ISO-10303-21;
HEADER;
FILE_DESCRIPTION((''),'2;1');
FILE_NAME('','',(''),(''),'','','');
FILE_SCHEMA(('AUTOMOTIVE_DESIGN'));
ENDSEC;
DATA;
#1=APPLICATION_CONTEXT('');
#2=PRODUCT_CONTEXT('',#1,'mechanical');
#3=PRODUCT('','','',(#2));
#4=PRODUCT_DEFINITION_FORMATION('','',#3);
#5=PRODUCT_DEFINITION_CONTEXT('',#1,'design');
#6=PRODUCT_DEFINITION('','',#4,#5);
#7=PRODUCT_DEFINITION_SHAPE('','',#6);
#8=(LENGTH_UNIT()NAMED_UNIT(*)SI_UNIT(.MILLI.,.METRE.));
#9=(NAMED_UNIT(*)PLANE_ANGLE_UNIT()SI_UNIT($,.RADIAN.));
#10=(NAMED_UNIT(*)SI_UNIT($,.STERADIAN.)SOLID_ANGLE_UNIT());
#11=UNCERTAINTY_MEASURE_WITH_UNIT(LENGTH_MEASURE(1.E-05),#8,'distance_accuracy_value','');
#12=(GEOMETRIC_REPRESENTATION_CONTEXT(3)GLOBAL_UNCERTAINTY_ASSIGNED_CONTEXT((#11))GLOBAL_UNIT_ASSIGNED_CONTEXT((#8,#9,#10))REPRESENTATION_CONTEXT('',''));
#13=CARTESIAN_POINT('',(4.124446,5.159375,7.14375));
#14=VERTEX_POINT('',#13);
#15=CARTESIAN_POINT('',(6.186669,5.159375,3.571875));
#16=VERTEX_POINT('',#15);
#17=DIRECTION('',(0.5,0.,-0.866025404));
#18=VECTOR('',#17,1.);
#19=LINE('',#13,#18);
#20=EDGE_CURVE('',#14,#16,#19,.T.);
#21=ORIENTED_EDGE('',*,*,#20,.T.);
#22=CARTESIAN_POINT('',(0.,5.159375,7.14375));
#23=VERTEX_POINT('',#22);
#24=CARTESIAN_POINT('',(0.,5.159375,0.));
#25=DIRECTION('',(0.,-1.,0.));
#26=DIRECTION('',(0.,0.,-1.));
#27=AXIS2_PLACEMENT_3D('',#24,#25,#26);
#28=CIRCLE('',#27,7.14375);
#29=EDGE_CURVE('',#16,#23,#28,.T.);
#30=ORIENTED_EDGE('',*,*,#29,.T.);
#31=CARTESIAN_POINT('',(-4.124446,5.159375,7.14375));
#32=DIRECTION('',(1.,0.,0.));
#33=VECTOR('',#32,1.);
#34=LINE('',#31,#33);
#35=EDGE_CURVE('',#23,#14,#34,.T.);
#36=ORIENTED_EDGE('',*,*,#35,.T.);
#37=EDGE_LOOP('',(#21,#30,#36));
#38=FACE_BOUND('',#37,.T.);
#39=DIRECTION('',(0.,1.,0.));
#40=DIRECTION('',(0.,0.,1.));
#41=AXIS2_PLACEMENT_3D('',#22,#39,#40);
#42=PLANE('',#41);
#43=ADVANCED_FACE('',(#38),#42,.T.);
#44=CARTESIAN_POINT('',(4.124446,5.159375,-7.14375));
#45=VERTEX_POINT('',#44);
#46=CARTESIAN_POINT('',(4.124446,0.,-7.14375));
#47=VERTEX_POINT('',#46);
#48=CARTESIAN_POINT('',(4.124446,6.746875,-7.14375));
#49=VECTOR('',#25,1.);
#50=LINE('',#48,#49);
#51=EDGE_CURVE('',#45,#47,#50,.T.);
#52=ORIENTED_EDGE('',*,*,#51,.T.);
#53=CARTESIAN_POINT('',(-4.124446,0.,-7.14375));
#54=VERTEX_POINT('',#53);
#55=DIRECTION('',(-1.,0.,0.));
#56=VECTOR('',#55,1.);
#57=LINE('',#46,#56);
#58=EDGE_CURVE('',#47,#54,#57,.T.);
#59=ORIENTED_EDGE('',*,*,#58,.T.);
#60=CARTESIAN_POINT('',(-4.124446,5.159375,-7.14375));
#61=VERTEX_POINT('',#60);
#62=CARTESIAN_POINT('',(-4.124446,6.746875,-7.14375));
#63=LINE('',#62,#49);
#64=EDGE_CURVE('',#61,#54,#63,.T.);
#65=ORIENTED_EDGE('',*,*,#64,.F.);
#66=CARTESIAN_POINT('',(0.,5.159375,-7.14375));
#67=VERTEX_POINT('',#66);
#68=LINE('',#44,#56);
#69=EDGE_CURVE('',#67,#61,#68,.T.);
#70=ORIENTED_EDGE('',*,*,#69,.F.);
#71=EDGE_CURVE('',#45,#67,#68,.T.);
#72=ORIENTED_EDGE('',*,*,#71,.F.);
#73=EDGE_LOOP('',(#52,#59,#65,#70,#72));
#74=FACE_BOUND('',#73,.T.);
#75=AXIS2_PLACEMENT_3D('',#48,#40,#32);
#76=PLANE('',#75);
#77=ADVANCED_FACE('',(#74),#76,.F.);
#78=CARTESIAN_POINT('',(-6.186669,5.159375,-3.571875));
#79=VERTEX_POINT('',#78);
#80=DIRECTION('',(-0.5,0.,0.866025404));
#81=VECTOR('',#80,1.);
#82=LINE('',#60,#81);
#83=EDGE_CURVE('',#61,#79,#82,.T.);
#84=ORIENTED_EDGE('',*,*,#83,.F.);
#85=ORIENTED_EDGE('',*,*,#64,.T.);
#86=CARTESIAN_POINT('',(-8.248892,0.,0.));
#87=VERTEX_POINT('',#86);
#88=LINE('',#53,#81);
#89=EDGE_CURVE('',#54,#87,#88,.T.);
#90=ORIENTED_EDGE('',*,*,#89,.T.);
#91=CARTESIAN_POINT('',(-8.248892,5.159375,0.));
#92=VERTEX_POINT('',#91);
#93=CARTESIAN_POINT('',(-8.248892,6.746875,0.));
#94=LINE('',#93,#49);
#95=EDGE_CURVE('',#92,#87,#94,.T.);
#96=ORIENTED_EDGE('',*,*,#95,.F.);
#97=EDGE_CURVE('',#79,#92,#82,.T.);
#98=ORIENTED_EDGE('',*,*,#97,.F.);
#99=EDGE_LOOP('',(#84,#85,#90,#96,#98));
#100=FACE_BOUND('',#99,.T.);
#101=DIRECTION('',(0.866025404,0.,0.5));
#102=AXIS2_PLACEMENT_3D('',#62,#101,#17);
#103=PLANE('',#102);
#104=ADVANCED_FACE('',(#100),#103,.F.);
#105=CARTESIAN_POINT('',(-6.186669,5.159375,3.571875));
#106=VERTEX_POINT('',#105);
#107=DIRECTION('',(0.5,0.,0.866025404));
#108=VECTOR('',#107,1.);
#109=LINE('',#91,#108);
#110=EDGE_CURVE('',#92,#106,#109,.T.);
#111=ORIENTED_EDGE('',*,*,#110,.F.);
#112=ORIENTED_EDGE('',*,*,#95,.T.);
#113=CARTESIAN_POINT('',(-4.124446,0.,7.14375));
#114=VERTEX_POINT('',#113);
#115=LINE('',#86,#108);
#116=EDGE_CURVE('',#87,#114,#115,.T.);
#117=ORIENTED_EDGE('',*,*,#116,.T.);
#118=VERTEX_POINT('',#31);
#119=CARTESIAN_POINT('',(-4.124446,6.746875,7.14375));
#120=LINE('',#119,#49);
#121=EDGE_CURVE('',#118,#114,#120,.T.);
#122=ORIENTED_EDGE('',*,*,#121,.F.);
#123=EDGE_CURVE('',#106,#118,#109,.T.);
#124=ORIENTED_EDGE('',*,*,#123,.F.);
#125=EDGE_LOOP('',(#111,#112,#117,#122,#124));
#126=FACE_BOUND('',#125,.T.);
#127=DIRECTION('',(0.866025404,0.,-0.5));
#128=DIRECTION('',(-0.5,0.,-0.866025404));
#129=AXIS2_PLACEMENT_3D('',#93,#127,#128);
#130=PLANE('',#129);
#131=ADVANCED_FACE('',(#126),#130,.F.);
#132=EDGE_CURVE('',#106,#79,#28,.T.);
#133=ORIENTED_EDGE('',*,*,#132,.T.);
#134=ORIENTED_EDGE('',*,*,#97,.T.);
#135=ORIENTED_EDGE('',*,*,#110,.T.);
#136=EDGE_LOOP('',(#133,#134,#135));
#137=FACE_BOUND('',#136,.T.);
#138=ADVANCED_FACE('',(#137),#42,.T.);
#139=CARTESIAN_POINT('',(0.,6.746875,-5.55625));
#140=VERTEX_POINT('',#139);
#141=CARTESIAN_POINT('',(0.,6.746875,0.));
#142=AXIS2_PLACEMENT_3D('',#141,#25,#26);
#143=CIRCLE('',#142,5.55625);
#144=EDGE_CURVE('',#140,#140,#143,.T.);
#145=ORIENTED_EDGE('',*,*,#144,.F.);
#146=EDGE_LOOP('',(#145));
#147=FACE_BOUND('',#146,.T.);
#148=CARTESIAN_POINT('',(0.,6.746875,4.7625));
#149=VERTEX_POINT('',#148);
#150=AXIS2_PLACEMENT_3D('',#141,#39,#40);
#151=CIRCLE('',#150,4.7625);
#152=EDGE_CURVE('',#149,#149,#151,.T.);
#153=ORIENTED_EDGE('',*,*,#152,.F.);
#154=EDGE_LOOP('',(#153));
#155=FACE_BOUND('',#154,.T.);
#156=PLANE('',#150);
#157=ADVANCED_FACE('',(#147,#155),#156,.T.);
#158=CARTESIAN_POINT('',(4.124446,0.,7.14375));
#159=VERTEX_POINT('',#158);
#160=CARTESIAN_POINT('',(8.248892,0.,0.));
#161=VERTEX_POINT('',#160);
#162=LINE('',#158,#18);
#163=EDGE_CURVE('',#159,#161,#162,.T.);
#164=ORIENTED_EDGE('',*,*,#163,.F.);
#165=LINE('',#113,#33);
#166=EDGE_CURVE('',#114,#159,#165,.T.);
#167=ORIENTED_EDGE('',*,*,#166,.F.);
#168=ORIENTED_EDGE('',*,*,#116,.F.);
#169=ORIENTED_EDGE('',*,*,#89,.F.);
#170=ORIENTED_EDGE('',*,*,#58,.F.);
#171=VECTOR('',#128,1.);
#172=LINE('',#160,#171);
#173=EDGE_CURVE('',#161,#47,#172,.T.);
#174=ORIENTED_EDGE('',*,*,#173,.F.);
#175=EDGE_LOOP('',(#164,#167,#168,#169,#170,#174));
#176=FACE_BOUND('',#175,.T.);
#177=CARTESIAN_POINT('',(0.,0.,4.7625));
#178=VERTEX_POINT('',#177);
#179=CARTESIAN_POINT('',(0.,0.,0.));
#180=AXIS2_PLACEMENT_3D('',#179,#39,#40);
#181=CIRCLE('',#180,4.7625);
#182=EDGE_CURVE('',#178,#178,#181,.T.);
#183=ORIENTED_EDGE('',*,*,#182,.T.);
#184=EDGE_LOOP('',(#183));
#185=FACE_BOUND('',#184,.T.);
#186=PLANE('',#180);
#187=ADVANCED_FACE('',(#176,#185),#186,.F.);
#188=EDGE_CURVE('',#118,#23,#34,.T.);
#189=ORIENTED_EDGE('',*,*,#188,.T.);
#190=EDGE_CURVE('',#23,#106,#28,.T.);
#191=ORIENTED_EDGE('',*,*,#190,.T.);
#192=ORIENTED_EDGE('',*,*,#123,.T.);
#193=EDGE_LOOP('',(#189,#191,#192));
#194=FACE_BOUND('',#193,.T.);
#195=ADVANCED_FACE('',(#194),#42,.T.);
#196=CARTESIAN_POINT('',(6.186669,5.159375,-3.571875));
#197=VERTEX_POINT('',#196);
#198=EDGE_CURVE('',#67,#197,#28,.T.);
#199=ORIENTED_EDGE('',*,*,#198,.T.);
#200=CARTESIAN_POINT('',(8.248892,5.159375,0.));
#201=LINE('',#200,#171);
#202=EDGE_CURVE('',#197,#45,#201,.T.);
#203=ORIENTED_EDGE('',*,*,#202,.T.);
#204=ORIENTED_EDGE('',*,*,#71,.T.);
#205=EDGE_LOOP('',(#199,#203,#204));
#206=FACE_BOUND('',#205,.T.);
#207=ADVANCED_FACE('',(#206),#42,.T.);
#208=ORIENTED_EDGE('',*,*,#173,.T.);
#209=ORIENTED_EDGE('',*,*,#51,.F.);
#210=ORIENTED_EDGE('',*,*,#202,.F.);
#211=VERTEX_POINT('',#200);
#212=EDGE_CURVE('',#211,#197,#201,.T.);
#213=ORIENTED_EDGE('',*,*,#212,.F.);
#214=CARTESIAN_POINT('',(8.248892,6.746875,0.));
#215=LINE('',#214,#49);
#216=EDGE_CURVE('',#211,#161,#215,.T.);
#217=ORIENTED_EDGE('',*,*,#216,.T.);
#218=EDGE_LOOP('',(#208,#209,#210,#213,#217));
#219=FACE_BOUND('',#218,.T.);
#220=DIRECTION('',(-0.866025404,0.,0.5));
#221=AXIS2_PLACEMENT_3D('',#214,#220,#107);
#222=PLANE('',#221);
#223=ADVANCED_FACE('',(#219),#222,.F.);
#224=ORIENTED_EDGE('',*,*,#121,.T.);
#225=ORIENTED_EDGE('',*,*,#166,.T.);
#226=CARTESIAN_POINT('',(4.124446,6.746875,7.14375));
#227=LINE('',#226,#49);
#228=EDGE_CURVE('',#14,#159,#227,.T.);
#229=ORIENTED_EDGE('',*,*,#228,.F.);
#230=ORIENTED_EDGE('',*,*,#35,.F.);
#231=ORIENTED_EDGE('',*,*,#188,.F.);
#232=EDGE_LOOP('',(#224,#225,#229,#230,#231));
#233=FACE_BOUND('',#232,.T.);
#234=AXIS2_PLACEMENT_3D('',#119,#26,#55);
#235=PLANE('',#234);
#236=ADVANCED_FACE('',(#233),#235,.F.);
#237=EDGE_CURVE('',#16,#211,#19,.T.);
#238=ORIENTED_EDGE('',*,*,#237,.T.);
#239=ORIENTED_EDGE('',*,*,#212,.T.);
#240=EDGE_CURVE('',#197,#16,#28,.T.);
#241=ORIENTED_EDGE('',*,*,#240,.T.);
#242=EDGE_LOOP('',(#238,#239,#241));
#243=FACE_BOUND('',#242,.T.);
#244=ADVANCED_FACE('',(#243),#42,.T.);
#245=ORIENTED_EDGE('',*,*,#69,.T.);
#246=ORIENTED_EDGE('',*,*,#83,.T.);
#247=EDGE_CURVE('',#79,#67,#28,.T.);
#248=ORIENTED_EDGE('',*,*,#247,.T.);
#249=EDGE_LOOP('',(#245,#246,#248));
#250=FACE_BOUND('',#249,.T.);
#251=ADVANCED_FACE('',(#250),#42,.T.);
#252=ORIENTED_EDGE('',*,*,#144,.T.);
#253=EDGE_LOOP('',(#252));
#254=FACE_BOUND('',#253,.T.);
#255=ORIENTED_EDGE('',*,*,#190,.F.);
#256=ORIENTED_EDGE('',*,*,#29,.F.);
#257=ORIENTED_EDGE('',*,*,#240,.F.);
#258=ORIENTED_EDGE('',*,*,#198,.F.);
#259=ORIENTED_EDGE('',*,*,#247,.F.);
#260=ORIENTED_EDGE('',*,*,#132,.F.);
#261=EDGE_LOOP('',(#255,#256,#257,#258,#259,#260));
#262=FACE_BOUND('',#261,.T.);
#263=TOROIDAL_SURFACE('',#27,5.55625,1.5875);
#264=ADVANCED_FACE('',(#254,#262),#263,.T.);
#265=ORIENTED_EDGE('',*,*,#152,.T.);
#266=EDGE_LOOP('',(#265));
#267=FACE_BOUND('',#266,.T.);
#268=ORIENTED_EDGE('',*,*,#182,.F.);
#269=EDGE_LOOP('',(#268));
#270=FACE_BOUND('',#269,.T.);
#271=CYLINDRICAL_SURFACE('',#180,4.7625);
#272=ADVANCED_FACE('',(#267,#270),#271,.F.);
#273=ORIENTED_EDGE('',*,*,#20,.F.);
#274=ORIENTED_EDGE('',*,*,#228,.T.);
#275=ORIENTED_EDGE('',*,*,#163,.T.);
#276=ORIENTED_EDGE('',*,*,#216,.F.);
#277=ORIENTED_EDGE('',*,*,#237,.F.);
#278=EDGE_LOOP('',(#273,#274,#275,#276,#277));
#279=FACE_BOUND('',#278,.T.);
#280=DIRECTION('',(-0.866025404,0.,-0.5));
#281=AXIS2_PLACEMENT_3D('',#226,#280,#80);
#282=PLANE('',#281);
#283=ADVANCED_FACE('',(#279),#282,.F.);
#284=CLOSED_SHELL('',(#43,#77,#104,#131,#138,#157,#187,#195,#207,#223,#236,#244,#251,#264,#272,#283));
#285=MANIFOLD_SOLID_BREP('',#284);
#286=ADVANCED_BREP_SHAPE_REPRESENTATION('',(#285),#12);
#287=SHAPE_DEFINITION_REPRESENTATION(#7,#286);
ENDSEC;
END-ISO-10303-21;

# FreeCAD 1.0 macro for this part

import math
import FreeCAD as App
import Part
import Sketcher
from FreeCAD import Vector
Q = App.Units.Quantity

doc = App.newDocument("Part")
body = doc.addObject("PartDesign::Body", "Body")

# Sketch on XZ plane
sketch1 = body.newObject("Sketcher::SketchObject", "Sketch")
sketch1.AttachmentSupport = (doc.getObject("XZ_Plane"), [""])
sketch1.MapMode = "FlatFace"
sketch1.addGeometry(Part.LineSegment(Vector(4.124446, -7.14375, 0), Vector(-4.124446, -7.14375, 0)), False)
sketch1.addGeometry(Part.LineSegment(Vector(-4.124446, -7.14375, 0), Vector(-8.248892, 0, 0)), False)
sketch1.addGeometry(Part.LineSegment(Vector(-8.248892, 0, 0), Vector(-4.124446, 7.14375, 0)), False)
sketch1.addGeometry(Part.LineSegment(Vector(-4.124446, 7.14375, 0), Vector(4.124446, 7.14375, 0)), False)
sketch1.addGeometry(Part.LineSegment(Vector(4.124446, 7.14375, 0), Vector(8.248892, 0, 0)), False)
sketch1.addGeometry(Part.LineSegment(Vector(8.248892, 0, 0), Vector(4.124446, -7.14375, 0)), False)
sketch1.addConstraint(Sketcher.Constraint("Coincident", 0, 2, 1, 1))
sketch1.addConstraint(Sketcher.Constraint("Coincident", 1, 2, 2, 1))
sketch1.addConstraint(Sketcher.Constraint("Coincident", 2, 2, 3, 1))
sketch1.addConstraint(Sketcher.Constraint("Coincident", 3, 2, 4, 1))
sketch1.addConstraint(Sketcher.Constraint("Coincident", 4, 2, 5, 1))
sketch1.addConstraint(Sketcher.Constraint("Coincident", 5, 2, 0, 1))
sketch1.addConstraint(Sketcher.Constraint("Horizontal", 0))
sketch1.addConstraint(Sketcher.Constraint("Horizontal", 3))
sketch1.addConstraint(Sketcher.Constraint("Symmetric", 0, 2, 3, 2, -1, 1))
sketch1.addConstraint(Sketcher.Constraint("Symmetric", 1, 2, 4, 2, -1, 1))
sketch1.addConstraint(Sketcher.Constraint("PointOnObject", 1, 2, -1))
sketch1.addConstraint(Sketcher.Constraint("Parallel", 2, 5))
sketch1.addConstraint(Sketcher.Constraint("Vertical", 0, 2, 2, 2))
sketch1.addConstraint(Sketcher.Constraint("Angle", 1, Q("120 deg")))
sketch1.addConstraint(Sketcher.Constraint("DistanceY", 0, 2, -1, 1, Q("0.28125 in")))
sketch1.addConstraint(Sketcher.Constraint("DistanceX", 0, 2, 0, 1, Q("8.248892 mm")))
pad1 = body.newObject("PartDesign::Pad", "Pad")
pad1.Profile = sketch1
pad1.Length = Q("0.265625 in")
pad1.Reversed = True

# Sketch on XZ plane
sketch2 = body.newObject("Sketcher::SketchObject", "Sketch001")
sketch2.AttachmentSupport = (doc.getObject("XZ_Plane"), [""])
sketch2.MapMode = "FlatFace"
sketch2.AttachmentOffset = App.Placement(Vector(0, 0, -0.265625 * 25.4), App.Rotation())
sketch2.addGeometry(Part.Circle(Vector(0, 0, 0), Vector(0, 0, 1), 4.7625), False)
sketch2.addConstraint(Sketcher.Constraint("Coincident", 0, 3, -1, 1))
sketch2.addConstraint(Sketcher.Constraint("Diameter", 0, Q("0.375 in")))
pocket1 = body.newObject("PartDesign::Pocket", "Pocket")
pocket1.Profile = sketch2
pocket1.Type = "ThroughAll"
pocket1.Reversed = True

# Sketch on YZ plane
sketch3 = body.newObject("Sketcher::SketchObject", "Sketch002")
sketch3.AttachmentSupport = (doc.getObject("YZ_Plane"), [""])
sketch3.MapMode = "FlatFace"
sketch3.addGeometry(Part.ArcOfCircle(Part.Circle(Vector(5.159375, 5.55625, 0), Vector(0, 0, 1), 1.5875), math.radians(0), math.radians(90)), False)
sketch3.addGeometry(Part.LineSegment(Vector(6.746875, 5.55625, 0), Vector(6.746875, 8.73125, 0)), False)
sketch3.addGeometry(Part.LineSegment(Vector(6.746875, 8.73125, 0), Vector(5.159375, 8.73125, 0)), False)
sketch3.addGeometry(Part.LineSegment(Vector(5.159375, 8.73125, 0), Vector(5.159375, 7.14375, 0)), False)
sketch3.addConstraint(Sketcher.Constraint("Tangent", 0, 1, 1, 1))
sketch3.addConstraint(Sketcher.Constraint("Coincident", 1, 2, 2, 1))
sketch3.addConstraint(Sketcher.Constraint("Coincident", 2, 2, 3, 1))
sketch3.addConstraint(Sketcher.Constraint("Coincident", 3, 2, 0, 2))
sketch3.addConstraint(Sketcher.Constraint("Vertical", 1))
sketch3.addConstraint(Sketcher.Constraint("Horizontal", 2))
sketch3.addConstraint(Sketcher.Constraint("Vertical", 3))
sketch3.addConstraint(Sketcher.Constraint("Vertical", 0, 3, 2, 2))
sketch3.addConstraint(Sketcher.Constraint("Equal", 2, 3))
sketch3.addConstraint(Sketcher.Constraint("Radius", 0, Q("0.0625 in")))
sketch3.addConstraint(Sketcher.Constraint("DistanceX", -1, 1, 0, 3, Q("0.203125 in")))
sketch3.addConstraint(Sketcher.Constraint("DistanceY", -1, 1, 0, 3, Q("0.21875 in")))
groove = body.newObject("PartDesign::Groove", "Groove")
groove.Profile = sketch3
groove.ReferenceAxis = (sketch3, ["H_Axis"])
groove.Angle = 360

doc.recompute()
